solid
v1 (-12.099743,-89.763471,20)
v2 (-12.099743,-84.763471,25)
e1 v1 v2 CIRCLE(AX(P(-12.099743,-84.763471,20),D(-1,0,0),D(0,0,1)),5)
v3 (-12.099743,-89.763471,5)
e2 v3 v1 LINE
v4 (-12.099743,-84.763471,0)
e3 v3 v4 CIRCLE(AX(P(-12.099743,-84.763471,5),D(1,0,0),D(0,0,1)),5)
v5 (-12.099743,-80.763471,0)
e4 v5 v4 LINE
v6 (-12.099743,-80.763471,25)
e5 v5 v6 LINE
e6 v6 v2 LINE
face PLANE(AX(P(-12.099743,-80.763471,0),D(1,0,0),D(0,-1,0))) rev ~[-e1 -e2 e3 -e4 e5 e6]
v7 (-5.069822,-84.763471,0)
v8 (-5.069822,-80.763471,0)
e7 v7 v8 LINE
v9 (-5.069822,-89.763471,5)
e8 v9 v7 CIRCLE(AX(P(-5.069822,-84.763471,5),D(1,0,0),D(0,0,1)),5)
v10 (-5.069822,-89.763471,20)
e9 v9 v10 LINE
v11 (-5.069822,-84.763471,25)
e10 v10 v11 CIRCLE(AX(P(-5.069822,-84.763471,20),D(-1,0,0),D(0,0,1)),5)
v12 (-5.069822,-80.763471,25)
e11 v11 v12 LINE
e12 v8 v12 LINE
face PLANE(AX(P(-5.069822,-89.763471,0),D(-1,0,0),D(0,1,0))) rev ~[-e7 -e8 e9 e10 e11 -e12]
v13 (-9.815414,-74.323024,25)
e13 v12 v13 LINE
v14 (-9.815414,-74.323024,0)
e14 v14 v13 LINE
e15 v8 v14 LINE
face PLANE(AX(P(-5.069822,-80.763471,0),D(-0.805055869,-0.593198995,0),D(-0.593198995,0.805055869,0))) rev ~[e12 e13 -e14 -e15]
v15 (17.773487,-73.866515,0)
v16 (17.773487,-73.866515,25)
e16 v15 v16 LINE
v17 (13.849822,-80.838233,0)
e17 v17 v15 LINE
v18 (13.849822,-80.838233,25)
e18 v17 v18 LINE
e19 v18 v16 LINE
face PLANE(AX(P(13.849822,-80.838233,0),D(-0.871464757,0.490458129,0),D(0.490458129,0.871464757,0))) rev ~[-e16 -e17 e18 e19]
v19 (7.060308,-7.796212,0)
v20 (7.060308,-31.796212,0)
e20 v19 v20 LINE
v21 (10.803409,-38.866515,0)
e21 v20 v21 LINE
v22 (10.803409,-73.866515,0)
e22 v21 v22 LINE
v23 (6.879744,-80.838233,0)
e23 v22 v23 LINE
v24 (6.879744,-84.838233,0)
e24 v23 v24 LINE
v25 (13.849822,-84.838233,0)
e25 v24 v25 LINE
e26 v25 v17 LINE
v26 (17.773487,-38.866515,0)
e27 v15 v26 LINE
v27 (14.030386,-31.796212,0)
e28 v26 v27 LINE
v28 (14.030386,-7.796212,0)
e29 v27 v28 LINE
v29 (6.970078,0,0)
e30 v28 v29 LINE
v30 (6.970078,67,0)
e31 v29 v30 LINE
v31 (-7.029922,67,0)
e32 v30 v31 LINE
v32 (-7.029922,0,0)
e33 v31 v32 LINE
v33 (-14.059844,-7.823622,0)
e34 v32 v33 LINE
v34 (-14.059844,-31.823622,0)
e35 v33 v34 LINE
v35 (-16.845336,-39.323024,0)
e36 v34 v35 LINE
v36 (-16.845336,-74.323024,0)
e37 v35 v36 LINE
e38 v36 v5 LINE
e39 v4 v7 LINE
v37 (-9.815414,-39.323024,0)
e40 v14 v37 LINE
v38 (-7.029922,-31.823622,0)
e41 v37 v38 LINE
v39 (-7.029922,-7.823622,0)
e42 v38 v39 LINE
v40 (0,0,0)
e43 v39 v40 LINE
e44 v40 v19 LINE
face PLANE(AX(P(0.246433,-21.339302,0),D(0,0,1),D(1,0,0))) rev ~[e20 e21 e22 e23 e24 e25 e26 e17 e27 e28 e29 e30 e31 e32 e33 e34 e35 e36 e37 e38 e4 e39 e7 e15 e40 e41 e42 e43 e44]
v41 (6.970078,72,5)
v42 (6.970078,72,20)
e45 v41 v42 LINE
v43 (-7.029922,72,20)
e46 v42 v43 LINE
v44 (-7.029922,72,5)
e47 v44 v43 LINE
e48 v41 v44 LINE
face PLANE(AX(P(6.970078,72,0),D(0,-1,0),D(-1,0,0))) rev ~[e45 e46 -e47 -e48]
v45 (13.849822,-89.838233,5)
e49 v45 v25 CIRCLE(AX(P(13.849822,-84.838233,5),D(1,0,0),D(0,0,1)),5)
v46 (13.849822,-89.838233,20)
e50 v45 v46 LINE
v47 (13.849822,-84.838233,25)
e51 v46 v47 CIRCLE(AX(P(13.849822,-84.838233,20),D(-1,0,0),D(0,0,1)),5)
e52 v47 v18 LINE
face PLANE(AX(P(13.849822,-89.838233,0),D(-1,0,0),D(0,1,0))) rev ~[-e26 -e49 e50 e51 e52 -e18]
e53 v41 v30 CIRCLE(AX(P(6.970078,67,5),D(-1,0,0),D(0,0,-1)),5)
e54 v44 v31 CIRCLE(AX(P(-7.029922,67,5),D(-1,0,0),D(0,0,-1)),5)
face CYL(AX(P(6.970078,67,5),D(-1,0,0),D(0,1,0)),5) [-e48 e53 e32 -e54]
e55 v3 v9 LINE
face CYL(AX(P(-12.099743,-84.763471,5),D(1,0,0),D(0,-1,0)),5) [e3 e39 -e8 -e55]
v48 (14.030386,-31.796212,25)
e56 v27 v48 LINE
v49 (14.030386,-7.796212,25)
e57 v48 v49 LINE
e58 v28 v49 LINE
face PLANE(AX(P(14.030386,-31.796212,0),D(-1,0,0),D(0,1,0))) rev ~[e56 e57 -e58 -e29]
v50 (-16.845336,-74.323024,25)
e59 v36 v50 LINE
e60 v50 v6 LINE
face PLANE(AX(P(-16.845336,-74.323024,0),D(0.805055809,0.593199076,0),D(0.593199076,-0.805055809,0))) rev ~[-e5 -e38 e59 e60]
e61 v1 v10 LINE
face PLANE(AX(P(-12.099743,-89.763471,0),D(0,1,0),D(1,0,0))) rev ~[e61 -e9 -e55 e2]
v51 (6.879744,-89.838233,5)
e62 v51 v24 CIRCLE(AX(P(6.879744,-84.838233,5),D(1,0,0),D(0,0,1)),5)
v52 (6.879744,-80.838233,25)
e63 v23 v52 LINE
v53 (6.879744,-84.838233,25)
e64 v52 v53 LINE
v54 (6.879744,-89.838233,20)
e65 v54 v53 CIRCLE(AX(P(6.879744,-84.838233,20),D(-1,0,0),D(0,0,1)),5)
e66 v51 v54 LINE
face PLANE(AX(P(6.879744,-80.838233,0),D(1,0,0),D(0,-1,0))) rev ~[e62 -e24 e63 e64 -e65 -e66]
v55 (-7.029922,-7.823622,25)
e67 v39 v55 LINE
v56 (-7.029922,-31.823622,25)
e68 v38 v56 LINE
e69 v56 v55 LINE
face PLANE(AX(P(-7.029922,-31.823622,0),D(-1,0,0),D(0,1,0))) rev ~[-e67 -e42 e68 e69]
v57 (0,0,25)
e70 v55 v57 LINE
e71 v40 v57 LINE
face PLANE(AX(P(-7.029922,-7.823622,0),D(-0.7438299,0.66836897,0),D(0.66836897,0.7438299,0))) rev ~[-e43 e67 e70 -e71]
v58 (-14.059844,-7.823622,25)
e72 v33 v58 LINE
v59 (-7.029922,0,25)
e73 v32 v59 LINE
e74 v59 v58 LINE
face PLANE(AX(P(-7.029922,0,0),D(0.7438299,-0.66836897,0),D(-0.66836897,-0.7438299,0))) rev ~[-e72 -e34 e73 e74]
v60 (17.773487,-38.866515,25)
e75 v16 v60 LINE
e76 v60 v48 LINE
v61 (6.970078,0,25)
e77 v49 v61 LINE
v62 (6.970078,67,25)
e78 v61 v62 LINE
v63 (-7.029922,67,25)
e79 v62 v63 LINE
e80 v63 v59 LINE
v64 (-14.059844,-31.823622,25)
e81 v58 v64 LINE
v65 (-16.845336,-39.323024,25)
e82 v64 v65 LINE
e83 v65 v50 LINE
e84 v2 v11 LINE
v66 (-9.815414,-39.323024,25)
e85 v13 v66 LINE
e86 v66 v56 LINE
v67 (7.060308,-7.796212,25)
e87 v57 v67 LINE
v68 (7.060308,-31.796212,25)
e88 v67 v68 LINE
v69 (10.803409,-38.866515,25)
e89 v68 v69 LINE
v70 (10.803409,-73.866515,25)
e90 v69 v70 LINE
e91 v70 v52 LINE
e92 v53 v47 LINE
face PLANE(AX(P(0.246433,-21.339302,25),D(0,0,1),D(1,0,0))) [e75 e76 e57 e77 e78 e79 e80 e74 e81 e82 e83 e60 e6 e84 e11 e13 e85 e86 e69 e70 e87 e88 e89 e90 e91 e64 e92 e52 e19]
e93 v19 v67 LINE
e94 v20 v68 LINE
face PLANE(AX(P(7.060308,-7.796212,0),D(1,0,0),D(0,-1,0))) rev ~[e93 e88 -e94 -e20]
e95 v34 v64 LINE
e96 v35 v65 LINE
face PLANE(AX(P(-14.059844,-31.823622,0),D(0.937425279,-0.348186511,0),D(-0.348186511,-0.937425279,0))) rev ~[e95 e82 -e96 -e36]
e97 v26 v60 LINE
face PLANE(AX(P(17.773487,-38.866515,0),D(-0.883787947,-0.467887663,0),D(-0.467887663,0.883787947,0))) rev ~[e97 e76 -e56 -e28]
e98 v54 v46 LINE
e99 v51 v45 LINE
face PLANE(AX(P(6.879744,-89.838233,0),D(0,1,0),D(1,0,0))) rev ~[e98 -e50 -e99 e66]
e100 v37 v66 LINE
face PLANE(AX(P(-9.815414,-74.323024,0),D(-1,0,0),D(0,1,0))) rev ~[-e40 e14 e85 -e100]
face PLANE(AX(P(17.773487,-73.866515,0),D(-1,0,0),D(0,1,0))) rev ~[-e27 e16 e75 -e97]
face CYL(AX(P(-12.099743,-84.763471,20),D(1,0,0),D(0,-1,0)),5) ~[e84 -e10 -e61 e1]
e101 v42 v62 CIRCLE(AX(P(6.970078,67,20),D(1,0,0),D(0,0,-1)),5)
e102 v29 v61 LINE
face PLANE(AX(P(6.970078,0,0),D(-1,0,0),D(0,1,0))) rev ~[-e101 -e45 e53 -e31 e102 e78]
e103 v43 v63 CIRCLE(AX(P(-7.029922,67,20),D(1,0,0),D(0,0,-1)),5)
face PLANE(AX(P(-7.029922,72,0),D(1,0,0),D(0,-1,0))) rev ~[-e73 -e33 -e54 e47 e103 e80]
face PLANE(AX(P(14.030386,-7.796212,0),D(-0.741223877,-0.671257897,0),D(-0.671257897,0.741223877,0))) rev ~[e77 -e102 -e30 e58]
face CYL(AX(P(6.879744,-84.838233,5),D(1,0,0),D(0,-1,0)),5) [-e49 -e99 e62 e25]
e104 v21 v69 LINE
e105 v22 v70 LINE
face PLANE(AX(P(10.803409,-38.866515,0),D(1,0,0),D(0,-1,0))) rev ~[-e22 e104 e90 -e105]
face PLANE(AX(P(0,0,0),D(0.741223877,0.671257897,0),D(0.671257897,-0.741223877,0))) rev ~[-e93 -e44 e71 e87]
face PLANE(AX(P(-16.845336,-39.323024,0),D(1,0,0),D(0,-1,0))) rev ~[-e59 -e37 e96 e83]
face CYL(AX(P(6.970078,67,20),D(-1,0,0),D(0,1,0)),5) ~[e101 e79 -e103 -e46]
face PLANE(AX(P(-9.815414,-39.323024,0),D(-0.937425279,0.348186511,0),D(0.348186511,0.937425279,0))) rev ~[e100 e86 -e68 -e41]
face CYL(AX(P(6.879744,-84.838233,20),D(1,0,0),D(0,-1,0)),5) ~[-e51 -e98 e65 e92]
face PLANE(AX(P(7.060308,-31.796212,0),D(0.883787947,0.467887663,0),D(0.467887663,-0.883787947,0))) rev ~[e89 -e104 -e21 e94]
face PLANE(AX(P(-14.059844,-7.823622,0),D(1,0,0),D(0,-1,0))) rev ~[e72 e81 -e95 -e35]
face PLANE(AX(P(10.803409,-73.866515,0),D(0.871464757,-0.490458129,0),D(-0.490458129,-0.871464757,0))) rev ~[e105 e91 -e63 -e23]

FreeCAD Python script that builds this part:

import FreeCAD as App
import Part
import Sketcher
from FreeCAD import Vector
Q = App.Units.Quantity


def edges_at(feature, points):
    """Names of the edges that pass closest to the given points."""
    edges = feature.Shape.Edges
    near = lambda p: min(range(len(edges)), key=lambda i: edges[i].distToShape(Part.Vertex(*p))[0])
    return sorted({f"Edge{near(p) + 1}" for p in points})


def add_polygon(sketch, points):
    """Adds a closed chain of lines whose ends are joined by coincident constraints."""
    first, n = sketch.GeometryCount, len(points)
    for a, b in zip(points, points[1:] + points[:1]):
        sketch.addGeometry(Part.LineSegment(App.Vector(*a, 0), App.Vector(*b, 0)), False)
    for i in range(n):
        sketch.addConstraint(Sketcher.Constraint("Coincident", first + i, 2, first + (i + 1) % n, 1))

doc = App.newDocument("Part")
params = doc.addObject("Spreadsheet::Sheet", "Params")
for row, (alias, value) in enumerate([
    ("sketch1_width", "14 mm"),
    ("sketch1_height", "72 mm"),
    ("sketch1_height2", "24 mm"),
    ("sketch1_height3", "35 mm"),
    ("sketch1_height4", "9 mm"),
    ("pad1_length", "25 mm"),
    ("fillet_radius", "5 mm"),
], start=1):
    params.set(f"A{row}", alias)
    params.set(f"B{row}", "=" + value)
    params.setAlias(f"B{row}", alias)

body = doc.addObject("PartDesign::Body", "Body")

sketch1 = doc.addObject("Sketcher::SketchObject", "Sketch")
body.addObject(sketch1)
sketch1.AttachmentSupport = (doc.XY_Plane, [""])
sketch1.MapMode = "FlatFace"
add_polygon(sketch1, [(6.970078, 72), (-7.029922, 72), (-7.029922, 0), (-14.059844, -7.823622), (-14.059844, -31.823622), (-16.845336, -39.323024), (-16.845336, -74.323024), (-12.099743, -80.763471), (-12.099743, -89.763471), (-5.069822, -89.763471), (-5.069822, -80.763471), (-9.815414, -74.323024), (-9.815414, -39.323024), (-7.029922, -31.823622), (-7.029922, -7.823622), (0, 0), (7.060308, -7.796212), (7.060308, -31.796212), (10.803409, -38.866515), (10.803409, -73.866515), (6.879744, -80.838233), (6.879744, -89.838233), (13.849822, -89.838233), (13.849822, -80.838233), (17.773487, -73.866515), (17.773487, -38.866515), (14.030386, -31.796212), (14.030386, -7.796212), (6.970078, 0)])
sketch1.addConstraint([
    Sketcher.Constraint("Horizontal", 0),
    Sketcher.Constraint("Vertical", 1),
    Sketcher.Constraint("Vertical", 3),
    Sketcher.Constraint("Vertical", 5),
    Sketcher.Constraint("Vertical", 7),
    Sketcher.Constraint("Horizontal", 8),
    Sketcher.Constraint("Vertical", 9),
    Sketcher.Constraint("Vertical", 11),
    Sketcher.Constraint("Vertical", 13),
    Sketcher.Constraint("Vertical", 16),
    Sketcher.Constraint("Vertical", 18),
    Sketcher.Constraint("Vertical", 20),
    Sketcher.Constraint("Horizontal", 21),
    Sketcher.Constraint("Vertical", 22),
    Sketcher.Constraint("Vertical", 24),
    Sketcher.Constraint("Vertical", 26),
    Sketcher.Constraint("Vertical", 28),
    Sketcher.Constraint("Coincident", 14, 2, -1, 1),
    Sketcher.Constraint("PointOnObject", 1, 2, -1),
    Sketcher.Constraint("PointOnObject", 27, 2, -1),
    Sketcher.Constraint("Parallel", 6, 10),
    Sketcher.Constraint("Parallel", 4, 12),
    Sketcher.Constraint("Parallel", 2, 14),
    Sketcher.Constraint("Parallel", 19, 23),
    Sketcher.Constraint("Parallel", 17, 25),
    Sketcher.Constraint("Parallel", 15, 27),
    Sketcher.Constraint("Horizontal", 6, 2, 9, 2),
    Sketcher.Constraint("Horizontal", 5, 2, 10, 2),
    Sketcher.Constraint("Horizontal", 4, 2, 11, 2),
    Sketcher.Constraint("Horizontal", 3, 2, 12, 2),
    Sketcher.Constraint("Horizontal", 2, 2, 13, 2),
    Sketcher.Constraint("Horizontal", 19, 2, 22, 2),
    Sketcher.Constraint("Horizontal", 18, 2, 23, 2),
    Sketcher.Constraint("Horizontal", 17, 2, 24, 2),
    Sketcher.Constraint("Horizontal", 16, 2, 25, 2),
    Sketcher.Constraint("Horizontal", 15, 2, 26, 2),
    Sketcher.Constraint("Vertical", 1, 2, 12, 2),
    Sketcher.Constraint("Equal", 13, 16),
    Sketcher.Constraint("Equal", 11, 18),
    Sketcher.Constraint("Equal", 9, 20),
    Sketcher.Constraint("Equal", 4, 6),
    Sketcher.Constraint("Equal", 14, 15),
    Sketcher.Constraint("Equal", 12, 17),
    Sketcher.Constraint("Equal", 17, 19),
    Sketcher.Constraint("DistanceX", 0, 2, 0, 1, Q("14 mm")),
    Sketcher.Constraint("DistanceY", 1, 2, 1, 1, Q("72 mm")),
    Sketcher.Constraint("DistanceY", 3, 2, 3, 1, Q("24 mm")),
    Sketcher.Constraint("DistanceY", 5, 2, 5, 1, Q("35 mm")),
    Sketcher.Constraint("DistanceY", 7, 2, 7, 1, Q("9 mm")),
    Sketcher.Constraint("Distance", 4, Q("8 mm")),
    Sketcher.Constraint("DistanceX", 8, 1, 8, 2, Q("7.029921 mm")),
    Sketcher.Constraint("DistanceY", 4, 2, 3, 2, Q("7.499402 mm")),
    Sketcher.Constraint("DistanceX", 3, 2, 6, 2, Q("1.960101 mm")),
    Sketcher.Constraint("DistanceX", 16, 2, 17, 2, Q("3.743101 mm")),
    Sketcher.Constraint("DistanceX", 11, 2, 24, 2, Q("27.588901 mm")),
    Sketcher.Constraint("DistanceY", 6, 2, -1, 1, Q("80.763471 mm")),
    Sketcher.Constraint("DistanceY", 19, 2, 10, 2, Q("6.515209 mm")),
])
sketch1.setExpression("Constraints[73]", "Params.sketch1_width")
sketch1.setExpression("Constraints[74]", "Params.sketch1_height")
sketch1.setExpression("Constraints[75]", "Params.sketch1_height2")
sketch1.setExpression("Constraints[76]", "Params.sketch1_height3")
sketch1.setExpression("Constraints[77]", "Params.sketch1_height4")
pad1 = doc.addObject("PartDesign::Pad", "Pad")
body.addObject(pad1)
pad1.Profile = sketch1
pad1.setExpression("Length", "Params.pad1_length")
doc.recompute()

fillet = doc.addObject("PartDesign::Fillet", "Fillet")
body.addObject(fillet)
fillet.Base = (pad1, edges_at(pad1, [
    (-0.03, 72, 25),
    (-0.03, 72, 0),
    (-8.585, -89.763, 0),
    (10.365, -89.838, 0),
    (-8.585, -89.763, 25),
    (10.365, -89.838, 25),
]))
fillet.setExpression("Radius", "Params.fillet_radius")

doc.recompute()
